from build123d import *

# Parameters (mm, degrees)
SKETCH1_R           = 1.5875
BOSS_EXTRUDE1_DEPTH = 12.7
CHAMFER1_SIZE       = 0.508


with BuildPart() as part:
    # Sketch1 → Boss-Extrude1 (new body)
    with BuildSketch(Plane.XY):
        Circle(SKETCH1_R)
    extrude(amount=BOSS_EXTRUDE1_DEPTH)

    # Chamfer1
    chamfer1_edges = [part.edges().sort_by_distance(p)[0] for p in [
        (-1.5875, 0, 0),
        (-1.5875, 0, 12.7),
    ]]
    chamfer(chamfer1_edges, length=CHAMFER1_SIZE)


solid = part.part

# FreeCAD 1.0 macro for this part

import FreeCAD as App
import Part
import Sketcher

V = App.Vector
Q = App.Units.Quantity


def edges_at(feature, points):
    """Names of the edges that pass closest to the given points."""
    edges = feature.Shape.Edges
    near = lambda p: min(range(len(edges)), key=lambda i: edges[i].distToShape(Part.Vertex(*p))[0])
    return sorted({f"Edge{near(p) + 1}" for p in points})

doc = App.newDocument("Part")
params = doc.addObject("Spreadsheet::Sheet", "Params")
for row, (alias, value) in enumerate([
    ("sketch1_diameter", "0.125 in"),
    ("pad1_length", "0.5 in"),
    ("chamfer_size", "0.02 in"),
], start=1):
    params.set(f"A{row}", alias)
    params.set(f"B{row}", "=" + value)
    params.setAlias(f"B{row}", alias)

body = doc.addObject("PartDesign::Body", "Body")

sketch1 = body.newObject("Sketcher::SketchObject", "Sketch")
sketch1.AttachmentSupport = (doc.getObject("XY_Plane"), [""])
sketch1.MapMode = "FlatFace"
sketch1.addGeometry(Part.Circle(V(0, 0, 0), V(0, 0, 1), 1.6), False)
sketch1.addConstraint([
    Sketcher.Constraint("Coincident", 0, 3, -1, 1),
    Sketcher.Constraint("Diameter", 0, Q("0.125 in")),
])
sketch1.setExpression("Constraints[1]", "Params.sketch1_diameter")
pad1 = body.newObject("PartDesign::Pad", "Pad")
pad1.Profile = sketch1
pad1.setExpression("Length", "Params.pad1_length")
doc.recompute()

chamfer = body.newObject("PartDesign::Chamfer", "Chamfer")
chamfer.Base = (pad1, edges_at(pad1, [(-1.587, 0, 0), (-1.587, 0, 12.7)]))
chamfer.setExpression("Size", "Params.chamfer_size")

doc.recompute()
